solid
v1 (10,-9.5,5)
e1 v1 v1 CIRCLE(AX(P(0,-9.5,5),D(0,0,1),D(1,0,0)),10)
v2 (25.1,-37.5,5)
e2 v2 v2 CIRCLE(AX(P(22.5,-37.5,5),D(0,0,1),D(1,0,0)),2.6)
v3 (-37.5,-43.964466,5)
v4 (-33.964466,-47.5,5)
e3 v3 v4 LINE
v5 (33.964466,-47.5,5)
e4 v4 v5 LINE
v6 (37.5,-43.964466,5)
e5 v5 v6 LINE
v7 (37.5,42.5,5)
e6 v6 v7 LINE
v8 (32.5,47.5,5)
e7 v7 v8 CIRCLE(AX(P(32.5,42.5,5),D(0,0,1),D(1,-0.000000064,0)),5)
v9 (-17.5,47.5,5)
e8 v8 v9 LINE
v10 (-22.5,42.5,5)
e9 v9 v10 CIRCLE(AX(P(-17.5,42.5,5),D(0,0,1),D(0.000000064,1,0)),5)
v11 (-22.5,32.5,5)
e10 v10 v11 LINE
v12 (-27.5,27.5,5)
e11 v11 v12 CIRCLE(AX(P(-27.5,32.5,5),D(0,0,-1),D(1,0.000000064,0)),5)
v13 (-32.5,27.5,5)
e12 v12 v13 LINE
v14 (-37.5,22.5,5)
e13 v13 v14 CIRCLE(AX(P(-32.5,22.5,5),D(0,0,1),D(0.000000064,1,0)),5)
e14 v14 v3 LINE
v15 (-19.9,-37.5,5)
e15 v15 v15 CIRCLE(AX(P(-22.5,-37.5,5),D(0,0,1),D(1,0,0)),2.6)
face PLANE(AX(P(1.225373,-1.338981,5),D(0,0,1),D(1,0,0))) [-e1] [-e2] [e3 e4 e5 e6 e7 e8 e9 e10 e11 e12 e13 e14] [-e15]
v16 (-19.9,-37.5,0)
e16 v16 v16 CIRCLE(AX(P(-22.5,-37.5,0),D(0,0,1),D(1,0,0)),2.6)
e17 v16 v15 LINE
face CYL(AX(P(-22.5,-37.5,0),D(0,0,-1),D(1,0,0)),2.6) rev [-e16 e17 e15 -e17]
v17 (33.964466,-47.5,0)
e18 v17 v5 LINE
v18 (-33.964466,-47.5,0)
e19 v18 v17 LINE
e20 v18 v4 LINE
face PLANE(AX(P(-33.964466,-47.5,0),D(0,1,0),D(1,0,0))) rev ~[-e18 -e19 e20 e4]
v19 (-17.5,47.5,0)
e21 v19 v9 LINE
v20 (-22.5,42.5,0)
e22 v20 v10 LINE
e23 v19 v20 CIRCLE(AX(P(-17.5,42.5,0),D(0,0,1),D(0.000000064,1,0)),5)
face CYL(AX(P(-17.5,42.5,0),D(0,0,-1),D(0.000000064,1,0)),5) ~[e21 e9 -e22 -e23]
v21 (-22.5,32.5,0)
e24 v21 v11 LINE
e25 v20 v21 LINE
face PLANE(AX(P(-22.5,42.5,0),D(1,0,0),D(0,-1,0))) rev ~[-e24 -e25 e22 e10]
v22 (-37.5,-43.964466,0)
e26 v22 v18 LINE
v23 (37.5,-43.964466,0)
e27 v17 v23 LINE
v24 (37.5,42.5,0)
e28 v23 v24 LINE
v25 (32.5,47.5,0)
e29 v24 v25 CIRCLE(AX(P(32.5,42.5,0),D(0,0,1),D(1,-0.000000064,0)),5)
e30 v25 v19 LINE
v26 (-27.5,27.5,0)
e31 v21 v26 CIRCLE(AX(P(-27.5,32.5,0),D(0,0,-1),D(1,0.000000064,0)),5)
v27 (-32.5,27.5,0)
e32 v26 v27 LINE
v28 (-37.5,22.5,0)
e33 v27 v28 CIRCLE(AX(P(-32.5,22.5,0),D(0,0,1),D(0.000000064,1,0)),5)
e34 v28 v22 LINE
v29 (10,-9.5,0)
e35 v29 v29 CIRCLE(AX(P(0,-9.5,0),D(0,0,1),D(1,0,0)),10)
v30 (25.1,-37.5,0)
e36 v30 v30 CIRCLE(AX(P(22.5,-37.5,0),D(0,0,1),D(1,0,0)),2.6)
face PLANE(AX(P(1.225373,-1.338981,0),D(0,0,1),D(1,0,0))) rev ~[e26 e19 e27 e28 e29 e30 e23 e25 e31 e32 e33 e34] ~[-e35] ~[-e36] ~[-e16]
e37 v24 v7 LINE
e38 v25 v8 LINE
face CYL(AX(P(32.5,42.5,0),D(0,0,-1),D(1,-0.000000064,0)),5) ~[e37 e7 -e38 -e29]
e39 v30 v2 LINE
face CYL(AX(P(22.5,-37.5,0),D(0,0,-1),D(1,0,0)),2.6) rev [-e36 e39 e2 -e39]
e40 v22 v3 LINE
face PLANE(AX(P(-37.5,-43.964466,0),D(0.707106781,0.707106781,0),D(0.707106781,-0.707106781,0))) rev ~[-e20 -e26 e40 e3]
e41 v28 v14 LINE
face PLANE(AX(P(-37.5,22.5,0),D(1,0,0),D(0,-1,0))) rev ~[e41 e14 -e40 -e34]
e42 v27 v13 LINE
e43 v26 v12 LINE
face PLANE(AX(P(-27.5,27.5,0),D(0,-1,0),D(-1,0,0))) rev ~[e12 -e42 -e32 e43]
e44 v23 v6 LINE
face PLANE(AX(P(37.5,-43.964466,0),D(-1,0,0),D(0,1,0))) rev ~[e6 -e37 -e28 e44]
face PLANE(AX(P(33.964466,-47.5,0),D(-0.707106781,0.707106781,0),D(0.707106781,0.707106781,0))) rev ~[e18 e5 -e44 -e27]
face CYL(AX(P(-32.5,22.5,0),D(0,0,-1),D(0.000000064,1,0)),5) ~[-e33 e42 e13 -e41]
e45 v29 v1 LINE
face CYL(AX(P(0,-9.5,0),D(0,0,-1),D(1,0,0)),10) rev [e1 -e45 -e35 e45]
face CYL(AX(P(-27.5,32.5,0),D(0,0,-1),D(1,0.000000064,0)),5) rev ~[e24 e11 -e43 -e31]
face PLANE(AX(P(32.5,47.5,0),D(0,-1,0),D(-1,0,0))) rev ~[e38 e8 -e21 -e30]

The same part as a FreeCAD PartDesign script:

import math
import FreeCAD as App
import Part
import Sketcher

doc = App.newDocument("Part")
body = doc.addObject("PartDesign::Body", "Body")

sketch1 = doc.addObject("Sketcher::SketchObject", "Sketch")
body.addObject(sketch1)
sketch1.AttachmentSupport = (doc.XY_Plane, [""])
sketch1.MapMode = "FlatFace"
sketch1.addGeometry([
    Part.LineSegment(App.Vector(-34, -47.5, 0), App.Vector(34, -47.5, 0)),
    Part.LineSegment(App.Vector(34, -47.5, 0), App.Vector(37.5, -44, 0)),
    Part.LineSegment(App.Vector(37.5, -44, 0), App.Vector(37.5, 42.5, 0)),
    Part.ArcOfCircle(Part.Circle(App.Vector(32.5, 42.5, 0), App.Vector(0, 0, 1), 5), math.radians(0), math.radians(90)),
    Part.LineSegment(App.Vector(32.5, 47.5, 0), App.Vector(-17.5, 47.5, 0)),
    Part.ArcOfCircle(Part.Circle(App.Vector(-17.5, 42.5, 0), App.Vector(0, 0, 1), 5), math.radians(90), math.radians(180)),
    Part.LineSegment(App.Vector(-22.5, 42.5, 0), App.Vector(-22.5, 32.5, 0)),
    Part.ArcOfCircle(Part.Circle(App.Vector(-27.5, 32.5, 0), App.Vector(0, 0, 1), 5), math.radians(-90), math.radians(0)),
    Part.LineSegment(App.Vector(-27.5, 27.5, 0), App.Vector(-32.5, 27.5, 0)),
    Part.ArcOfCircle(Part.Circle(App.Vector(-32.5, 22.5, 0), App.Vector(0, 0, 1), 5), math.radians(90), math.radians(180)),
    Part.LineSegment(App.Vector(-37.5, 22.5, 0), App.Vector(-37.5, -44, 0)),
    Part.LineSegment(App.Vector(-37.5, -44, 0), App.Vector(-34, -47.5, 0)),
    Part.Circle(App.Vector(-22.5, -37.5, 0), App.Vector(0, 0, 1), 2.6),
    Part.Circle(App.Vector(22.5, -37.5, 0), App.Vector(0, 0, 1), 2.6),
    Part.Circle(App.Vector(0, -9.5, 0), App.Vector(0, 0, 1), 10),
], False)
sketch1.addConstraint([
    Sketcher.Constraint("Coincident", 0, 2, 1, 1),
    Sketcher.Constraint("Coincident", 1, 2, 2, 1),
    Sketcher.Constraint("Tangent", 2, 2, 3, 1),
    Sketcher.Constraint("Tangent", 3, 2, 4, 1),
    Sketcher.Constraint("Tangent", 4, 2, 5, 1),
    Sketcher.Constraint("Tangent", 5, 2, 6, 1),
    Sketcher.Constraint("Tangent", 6, 2, 7, 2),
    Sketcher.Constraint("Tangent", 7, 1, 8, 1),
    Sketcher.Constraint("Tangent", 8, 2, 9, 1),
    Sketcher.Constraint("Tangent", 9, 2, 10, 1),
    Sketcher.Constraint("Coincident", 10, 2, 11, 1),
    Sketcher.Constraint("Coincident", 11, 2, 0, 1),
    Sketcher.Constraint("Horizontal", 0),
    Sketcher.Constraint("Vertical", 2),
    Sketcher.Constraint("Horizontal", 4),
    Sketcher.Constraint("Vertical", 6),
    Sketcher.Constraint("Horizontal", 8),
    Sketcher.Constraint("Vertical", 10),
    Sketcher.Constraint("Equal", 3, 5),
    Sketcher.Constraint("Equal", 5, 7),
    Sketcher.Constraint("Equal", 7, 9),
    Sketcher.Constraint("Equal", 12, 13),
    Sketcher.Constraint("Symmetric", 12, 3, 13, 3, -2),
    Sketcher.Constraint("Symmetric", 1, 2, 10, 2, -2),
    Sketcher.Constraint("PointOnObject", 14, 3, -2),
    Sketcher.Constraint("Perpendicular", 1, 11),
    Sketcher.Constraint("Vertical", 12, 3, 5, 2),
    Sketcher.Constraint("Equal", 1, 11),
    Sketcher.Constraint("Diameter", 14, 20.0),
    Sketcher.Constraint("Radius", 3, 5.0),
    Sketcher.Constraint("Diameter", 12, 5.2),
    Sketcher.Constraint("DistanceX", 4, 2, 4, 1, 50.0),
    Sketcher.Constraint("DistanceX", 8, 2, 8, 1, 5.0),
    Sketcher.Constraint("DistanceY", 6, 2, 6, 1, 10.0),
    Sketcher.Constraint("Distance", 1, 5.0),
    Sketcher.Constraint("DistanceY", 12, 3, 9, 3, 60.0),
    Sketcher.Constraint("DistanceY", 12, 3, 14, 3, 28.0),
    Sketcher.Constraint("DistanceY", 0, 2, 13, 3, 10.0),
    Sketcher.Constraint("DistanceY", -1, 1, 3, 3, 42.5),
])
pad1 = doc.addObject("PartDesign::Pad", "Pad")
body.addObject(pad1)
pad1.Profile = sketch1
pad1.Length = 5

doc.recompute()
